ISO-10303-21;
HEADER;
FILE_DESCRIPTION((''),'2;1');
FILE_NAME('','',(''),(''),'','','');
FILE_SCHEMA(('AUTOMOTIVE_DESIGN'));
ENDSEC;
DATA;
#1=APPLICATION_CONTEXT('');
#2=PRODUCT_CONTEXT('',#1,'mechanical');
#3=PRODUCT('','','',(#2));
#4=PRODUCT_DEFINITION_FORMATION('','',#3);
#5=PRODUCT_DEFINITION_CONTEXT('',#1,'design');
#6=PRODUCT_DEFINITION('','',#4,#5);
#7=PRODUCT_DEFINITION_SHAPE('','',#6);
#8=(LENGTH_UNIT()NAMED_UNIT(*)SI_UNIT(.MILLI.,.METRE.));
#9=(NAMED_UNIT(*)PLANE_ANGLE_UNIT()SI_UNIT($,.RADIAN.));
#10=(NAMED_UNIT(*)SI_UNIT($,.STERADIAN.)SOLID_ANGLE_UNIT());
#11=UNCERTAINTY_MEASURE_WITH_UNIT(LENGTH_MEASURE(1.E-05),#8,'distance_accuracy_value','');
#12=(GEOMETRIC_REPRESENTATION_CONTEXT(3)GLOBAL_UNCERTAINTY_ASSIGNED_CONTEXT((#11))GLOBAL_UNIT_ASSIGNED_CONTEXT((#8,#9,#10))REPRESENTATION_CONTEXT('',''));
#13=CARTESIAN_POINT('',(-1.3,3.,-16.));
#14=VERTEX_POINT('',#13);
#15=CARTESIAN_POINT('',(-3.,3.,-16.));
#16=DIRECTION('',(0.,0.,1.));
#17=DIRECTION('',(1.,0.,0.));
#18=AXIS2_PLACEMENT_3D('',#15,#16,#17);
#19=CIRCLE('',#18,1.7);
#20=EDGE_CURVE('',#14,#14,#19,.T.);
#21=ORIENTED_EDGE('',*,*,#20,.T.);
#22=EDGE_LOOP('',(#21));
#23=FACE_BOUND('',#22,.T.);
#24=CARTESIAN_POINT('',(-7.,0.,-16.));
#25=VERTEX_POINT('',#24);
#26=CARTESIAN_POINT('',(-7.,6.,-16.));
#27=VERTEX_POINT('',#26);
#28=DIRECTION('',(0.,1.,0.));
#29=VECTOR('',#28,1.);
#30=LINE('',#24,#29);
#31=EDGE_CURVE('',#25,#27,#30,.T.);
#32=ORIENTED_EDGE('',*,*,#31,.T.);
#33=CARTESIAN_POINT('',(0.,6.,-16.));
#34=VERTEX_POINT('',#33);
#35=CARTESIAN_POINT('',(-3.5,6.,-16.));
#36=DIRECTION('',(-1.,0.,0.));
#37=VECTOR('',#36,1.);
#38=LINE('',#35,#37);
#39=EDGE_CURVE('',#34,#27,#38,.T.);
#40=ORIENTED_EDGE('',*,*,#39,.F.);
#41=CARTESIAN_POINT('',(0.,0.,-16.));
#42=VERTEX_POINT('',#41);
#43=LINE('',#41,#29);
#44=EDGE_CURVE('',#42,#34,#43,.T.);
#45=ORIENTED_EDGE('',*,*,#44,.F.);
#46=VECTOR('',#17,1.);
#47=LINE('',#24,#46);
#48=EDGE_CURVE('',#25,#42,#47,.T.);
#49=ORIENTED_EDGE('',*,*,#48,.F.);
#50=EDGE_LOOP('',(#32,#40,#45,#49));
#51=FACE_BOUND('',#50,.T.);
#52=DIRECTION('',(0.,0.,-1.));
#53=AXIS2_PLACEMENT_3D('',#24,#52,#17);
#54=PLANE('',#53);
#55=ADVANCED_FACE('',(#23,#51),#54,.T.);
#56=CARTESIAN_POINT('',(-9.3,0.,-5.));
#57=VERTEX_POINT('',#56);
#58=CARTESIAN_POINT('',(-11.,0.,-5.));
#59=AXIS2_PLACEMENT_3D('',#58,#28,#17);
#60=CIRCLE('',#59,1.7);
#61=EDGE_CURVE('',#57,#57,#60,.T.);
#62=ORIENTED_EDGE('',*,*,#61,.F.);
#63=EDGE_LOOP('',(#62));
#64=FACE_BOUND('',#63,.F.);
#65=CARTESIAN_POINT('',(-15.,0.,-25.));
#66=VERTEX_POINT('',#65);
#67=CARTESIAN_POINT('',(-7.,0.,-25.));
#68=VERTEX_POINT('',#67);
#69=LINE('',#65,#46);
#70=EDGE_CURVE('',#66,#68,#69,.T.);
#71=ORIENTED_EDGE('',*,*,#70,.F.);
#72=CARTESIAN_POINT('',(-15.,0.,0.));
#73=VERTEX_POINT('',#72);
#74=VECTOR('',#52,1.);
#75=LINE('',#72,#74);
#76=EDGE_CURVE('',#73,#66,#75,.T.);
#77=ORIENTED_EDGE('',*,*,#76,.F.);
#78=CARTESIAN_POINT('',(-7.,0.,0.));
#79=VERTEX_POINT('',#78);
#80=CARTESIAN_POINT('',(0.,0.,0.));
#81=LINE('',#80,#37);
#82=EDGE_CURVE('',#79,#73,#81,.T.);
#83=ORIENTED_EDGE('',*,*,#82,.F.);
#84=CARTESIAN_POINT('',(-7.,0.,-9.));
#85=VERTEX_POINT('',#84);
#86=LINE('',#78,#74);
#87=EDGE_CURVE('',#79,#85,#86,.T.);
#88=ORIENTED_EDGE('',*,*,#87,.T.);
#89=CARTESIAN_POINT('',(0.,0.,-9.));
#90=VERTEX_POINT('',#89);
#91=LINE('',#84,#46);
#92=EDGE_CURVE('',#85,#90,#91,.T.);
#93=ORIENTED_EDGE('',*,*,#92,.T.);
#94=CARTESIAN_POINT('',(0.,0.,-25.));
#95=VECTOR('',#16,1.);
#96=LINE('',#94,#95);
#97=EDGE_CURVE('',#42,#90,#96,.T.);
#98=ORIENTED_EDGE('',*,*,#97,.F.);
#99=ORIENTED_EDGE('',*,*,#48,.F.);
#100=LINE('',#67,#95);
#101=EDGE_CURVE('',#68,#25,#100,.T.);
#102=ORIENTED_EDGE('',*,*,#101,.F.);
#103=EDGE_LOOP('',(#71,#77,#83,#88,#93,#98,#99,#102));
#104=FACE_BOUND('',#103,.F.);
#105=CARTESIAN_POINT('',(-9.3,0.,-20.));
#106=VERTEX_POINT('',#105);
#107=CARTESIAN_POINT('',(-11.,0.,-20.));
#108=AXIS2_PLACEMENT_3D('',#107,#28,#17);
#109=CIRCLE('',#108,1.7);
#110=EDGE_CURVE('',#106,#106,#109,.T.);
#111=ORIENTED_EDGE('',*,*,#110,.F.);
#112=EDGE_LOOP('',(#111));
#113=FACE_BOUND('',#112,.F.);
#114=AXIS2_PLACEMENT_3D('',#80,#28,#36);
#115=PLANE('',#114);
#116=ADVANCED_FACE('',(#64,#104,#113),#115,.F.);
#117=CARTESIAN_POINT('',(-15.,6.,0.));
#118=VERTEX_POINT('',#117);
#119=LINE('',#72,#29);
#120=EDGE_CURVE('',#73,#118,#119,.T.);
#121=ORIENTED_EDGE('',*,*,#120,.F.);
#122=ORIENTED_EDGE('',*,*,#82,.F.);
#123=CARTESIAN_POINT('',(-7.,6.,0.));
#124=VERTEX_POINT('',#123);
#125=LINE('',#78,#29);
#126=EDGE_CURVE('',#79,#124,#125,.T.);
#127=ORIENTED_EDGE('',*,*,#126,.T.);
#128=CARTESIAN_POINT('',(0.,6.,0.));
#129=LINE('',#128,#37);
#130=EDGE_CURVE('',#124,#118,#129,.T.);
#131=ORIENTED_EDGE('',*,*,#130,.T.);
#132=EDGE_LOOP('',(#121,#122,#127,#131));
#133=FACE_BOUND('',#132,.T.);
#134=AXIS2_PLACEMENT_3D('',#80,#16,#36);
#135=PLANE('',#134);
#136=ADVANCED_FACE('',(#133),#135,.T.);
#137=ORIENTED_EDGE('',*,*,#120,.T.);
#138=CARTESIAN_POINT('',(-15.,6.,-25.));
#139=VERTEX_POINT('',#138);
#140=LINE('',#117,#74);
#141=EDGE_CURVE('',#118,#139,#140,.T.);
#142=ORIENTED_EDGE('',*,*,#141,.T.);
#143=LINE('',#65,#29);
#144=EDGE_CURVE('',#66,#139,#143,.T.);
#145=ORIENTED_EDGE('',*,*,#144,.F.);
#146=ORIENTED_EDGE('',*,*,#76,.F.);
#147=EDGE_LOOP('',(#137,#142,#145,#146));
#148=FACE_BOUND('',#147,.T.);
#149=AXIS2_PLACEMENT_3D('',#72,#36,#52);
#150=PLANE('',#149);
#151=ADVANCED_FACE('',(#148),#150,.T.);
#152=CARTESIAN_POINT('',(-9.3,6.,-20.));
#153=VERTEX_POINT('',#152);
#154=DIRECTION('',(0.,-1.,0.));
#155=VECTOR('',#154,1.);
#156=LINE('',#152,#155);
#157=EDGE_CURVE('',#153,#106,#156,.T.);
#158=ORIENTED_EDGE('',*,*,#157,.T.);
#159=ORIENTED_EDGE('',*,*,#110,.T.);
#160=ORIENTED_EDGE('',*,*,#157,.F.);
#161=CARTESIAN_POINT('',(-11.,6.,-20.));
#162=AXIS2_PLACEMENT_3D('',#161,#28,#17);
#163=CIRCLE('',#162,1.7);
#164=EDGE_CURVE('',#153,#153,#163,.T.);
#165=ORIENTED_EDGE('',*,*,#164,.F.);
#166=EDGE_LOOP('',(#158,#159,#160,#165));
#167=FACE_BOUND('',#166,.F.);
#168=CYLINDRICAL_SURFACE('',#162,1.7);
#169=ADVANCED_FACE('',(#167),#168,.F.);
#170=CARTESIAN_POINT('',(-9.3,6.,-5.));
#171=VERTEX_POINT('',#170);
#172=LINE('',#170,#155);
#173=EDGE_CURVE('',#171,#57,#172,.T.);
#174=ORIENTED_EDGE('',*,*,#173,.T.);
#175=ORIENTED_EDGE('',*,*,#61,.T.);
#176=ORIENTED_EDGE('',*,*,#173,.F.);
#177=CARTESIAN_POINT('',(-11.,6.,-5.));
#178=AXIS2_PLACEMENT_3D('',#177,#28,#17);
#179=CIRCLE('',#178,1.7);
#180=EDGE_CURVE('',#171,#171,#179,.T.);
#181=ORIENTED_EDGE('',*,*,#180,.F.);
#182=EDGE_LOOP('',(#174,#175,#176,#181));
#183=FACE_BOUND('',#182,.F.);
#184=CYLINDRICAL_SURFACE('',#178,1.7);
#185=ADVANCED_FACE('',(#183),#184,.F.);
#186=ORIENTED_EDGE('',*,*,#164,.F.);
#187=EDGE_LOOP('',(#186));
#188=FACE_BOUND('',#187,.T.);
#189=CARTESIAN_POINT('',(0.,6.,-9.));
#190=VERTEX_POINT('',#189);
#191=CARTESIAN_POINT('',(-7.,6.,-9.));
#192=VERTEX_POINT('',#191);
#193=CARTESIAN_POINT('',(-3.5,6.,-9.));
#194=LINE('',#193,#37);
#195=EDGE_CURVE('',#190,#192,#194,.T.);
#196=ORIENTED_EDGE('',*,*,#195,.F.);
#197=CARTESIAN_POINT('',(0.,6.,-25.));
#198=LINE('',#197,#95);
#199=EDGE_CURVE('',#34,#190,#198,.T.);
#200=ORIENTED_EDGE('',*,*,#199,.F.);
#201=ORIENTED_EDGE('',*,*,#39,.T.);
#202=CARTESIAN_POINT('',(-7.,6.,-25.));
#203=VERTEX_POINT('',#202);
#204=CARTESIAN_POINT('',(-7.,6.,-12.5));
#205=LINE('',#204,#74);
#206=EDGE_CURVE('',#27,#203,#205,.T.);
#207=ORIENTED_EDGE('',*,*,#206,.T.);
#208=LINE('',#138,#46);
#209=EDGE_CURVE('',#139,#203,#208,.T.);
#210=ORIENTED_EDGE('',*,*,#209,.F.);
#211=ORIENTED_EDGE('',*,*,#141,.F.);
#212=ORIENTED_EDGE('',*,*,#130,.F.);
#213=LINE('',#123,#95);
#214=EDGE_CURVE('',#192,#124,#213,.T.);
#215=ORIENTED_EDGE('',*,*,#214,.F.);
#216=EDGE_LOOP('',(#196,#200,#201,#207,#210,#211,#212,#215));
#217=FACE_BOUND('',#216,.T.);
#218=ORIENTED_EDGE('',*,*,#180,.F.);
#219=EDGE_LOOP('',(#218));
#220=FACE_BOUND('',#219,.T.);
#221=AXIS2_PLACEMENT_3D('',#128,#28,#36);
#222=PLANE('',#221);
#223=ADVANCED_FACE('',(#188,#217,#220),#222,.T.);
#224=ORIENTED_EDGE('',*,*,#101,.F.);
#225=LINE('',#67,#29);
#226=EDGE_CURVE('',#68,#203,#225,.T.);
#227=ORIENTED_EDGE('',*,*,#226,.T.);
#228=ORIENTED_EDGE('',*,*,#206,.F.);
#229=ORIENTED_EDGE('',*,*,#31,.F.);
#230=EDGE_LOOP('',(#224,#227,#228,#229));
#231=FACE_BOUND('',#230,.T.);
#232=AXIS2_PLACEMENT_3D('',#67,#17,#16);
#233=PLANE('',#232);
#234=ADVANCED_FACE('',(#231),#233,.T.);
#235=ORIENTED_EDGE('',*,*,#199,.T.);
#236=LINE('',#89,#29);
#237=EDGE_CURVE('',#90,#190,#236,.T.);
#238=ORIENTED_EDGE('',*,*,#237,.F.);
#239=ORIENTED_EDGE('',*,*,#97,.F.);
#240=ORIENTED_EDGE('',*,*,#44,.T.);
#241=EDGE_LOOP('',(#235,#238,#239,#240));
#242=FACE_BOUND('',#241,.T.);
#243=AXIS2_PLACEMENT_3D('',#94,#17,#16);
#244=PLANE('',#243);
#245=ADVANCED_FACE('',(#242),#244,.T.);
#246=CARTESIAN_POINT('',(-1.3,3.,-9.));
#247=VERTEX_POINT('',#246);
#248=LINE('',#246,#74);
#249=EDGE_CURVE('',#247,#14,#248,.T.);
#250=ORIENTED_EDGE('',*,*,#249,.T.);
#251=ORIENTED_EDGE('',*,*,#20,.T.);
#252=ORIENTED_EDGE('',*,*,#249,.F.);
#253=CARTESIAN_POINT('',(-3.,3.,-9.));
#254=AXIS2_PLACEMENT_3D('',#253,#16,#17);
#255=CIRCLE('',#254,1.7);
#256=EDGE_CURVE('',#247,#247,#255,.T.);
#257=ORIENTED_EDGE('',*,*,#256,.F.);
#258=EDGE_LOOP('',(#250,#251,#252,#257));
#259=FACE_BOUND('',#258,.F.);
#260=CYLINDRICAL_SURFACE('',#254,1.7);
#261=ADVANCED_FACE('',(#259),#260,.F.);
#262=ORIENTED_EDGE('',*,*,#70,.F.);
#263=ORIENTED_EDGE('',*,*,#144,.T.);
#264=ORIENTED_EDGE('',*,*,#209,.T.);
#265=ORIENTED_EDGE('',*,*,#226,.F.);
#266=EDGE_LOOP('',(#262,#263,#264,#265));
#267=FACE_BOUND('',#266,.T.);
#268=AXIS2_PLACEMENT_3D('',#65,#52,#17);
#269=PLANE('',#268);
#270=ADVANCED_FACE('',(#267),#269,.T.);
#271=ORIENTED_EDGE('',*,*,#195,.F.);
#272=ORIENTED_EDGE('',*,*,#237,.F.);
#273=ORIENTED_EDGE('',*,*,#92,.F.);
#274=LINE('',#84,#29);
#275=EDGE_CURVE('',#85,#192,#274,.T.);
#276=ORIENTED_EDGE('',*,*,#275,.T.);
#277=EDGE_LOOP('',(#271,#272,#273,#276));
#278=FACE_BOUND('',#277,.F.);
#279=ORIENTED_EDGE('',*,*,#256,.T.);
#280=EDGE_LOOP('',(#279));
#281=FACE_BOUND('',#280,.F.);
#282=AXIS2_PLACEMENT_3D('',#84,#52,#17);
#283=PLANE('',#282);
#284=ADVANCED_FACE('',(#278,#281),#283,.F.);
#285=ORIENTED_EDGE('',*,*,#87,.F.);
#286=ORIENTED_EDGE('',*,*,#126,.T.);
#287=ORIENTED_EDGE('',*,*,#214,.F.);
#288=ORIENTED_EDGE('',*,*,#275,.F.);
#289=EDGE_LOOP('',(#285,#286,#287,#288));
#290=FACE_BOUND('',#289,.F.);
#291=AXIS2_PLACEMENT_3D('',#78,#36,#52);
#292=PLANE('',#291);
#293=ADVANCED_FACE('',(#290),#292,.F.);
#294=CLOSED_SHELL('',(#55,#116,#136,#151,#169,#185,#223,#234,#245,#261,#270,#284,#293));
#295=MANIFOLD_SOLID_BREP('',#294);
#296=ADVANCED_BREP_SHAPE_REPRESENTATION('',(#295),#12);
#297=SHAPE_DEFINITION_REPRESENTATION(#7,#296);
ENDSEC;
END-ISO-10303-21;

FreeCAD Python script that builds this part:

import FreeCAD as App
import Part
import Sketcher
Q = App.Units.Quantity


def add_polygon(sketch, points):
    """Adds a closed chain of lines whose ends are joined by coincident constraints."""
    first, n = sketch.GeometryCount, len(points)
    for a, b in zip(points, points[1:] + points[:1]):
        sketch.addGeometry(Part.LineSegment(App.Vector(*a, 0), App.Vector(*b, 0)), False)
    for i in range(n):
        sketch.addConstraint(Sketcher.Constraint("Coincident", first + i, 2, first + (i + 1) % n, 1))

doc = App.newDocument("Part")
body = doc.addObject("PartDesign::Body", "Body")

# Sketch on XZ plane
sketch1 = body.newObject("Sketcher::SketchObject", "Sketch")
sketch1.AttachmentSupport = (doc.getObject("XZ_Plane"), [""])
sketch1.MapMode = "FlatFace"
add_polygon(sketch1, [(-15, 0), (0, 0), (0, -25), (-15, -25)])  # lines 0-3
sketch1.addConstraint(Sketcher.Constraint("Horizontal", 0))
sketch1.addConstraint(Sketcher.Constraint("Vertical", 1))
sketch1.addConstraint(Sketcher.Constraint("Horizontal", 2))
sketch1.addConstraint(Sketcher.Constraint("Vertical", 3))
sketch1.addConstraint(Sketcher.Constraint("Coincident", 0, 2, -1, 1))
sketch1.addConstraint(Sketcher.Constraint("DistanceX", 0, 1, 0, 2, Q("15 mm")))
sketch1.addConstraint(Sketcher.Constraint("DistanceY", 1, 2, 1, 1, Q("25 mm")))
pad1 = body.newObject("PartDesign::Pad", "Pad")
pad1.Profile = sketch1
pad1.Length = 6
pad1.Reversed = True

# Sketch on XZ plane
sketch2 = body.newObject("Sketcher::SketchObject", "Sketch001")
sketch2.AttachmentSupport = (doc.getObject("XZ_Plane"), [""])
sketch2.MapMode = "FlatFace"
sketch2.AttachmentOffset = App.Placement(App.Vector(0, 0, -6), App.Rotation())
sketch2.addGeometry(Part.Circle(App.Vector(-11, -5, 0), App.Vector(0, 0, 1), 1.7), False)
sketch2.addGeometry(Part.Circle(App.Vector(-11, -20, 0), App.Vector(0, 0, 1), 1.7), False)
sketch2.addConstraint(Sketcher.Constraint("Equal", 0, 1))
sketch2.addConstraint(Sketcher.Constraint("Vertical", 0, 3, 1, 3))
sketch2.addConstraint(Sketcher.Constraint("Diameter", 0, Q("3.4 mm")))
sketch2.addConstraint(Sketcher.Constraint("DistanceY", 0, 3, -1, 1, Q("5 mm")))
sketch2.addConstraint(Sketcher.Constraint("DistanceX", 0, 3, -1, 1, Q("11 mm")))
sketch2.addConstraint(Sketcher.Constraint("DistanceY", 1, 3, -1, 1, Q("20 mm")))
pocket1 = body.newObject("PartDesign::Pocket", "Pocket")
pocket1.Profile = sketch2
pocket1.Length = 30
pocket1.Reversed = True

# Sketch on XZ plane
sketch3 = body.newObject("Sketcher::SketchObject", "Sketch002")
sketch3.AttachmentSupport = (doc.getObject("XZ_Plane"), [""])
sketch3.MapMode = "FlatFace"
add_polygon(sketch3, [(-7, -25), (0, -25), (0, -16), (-7, -16)])  # lines 0-3
add_polygon(sketch3, [(0, 0), (-7, 0), (-7, -9), (0, -9)])  # lines 4-7
sketch3.addConstraint(Sketcher.Constraint("Horizontal", 0))
sketch3.addConstraint(Sketcher.Constraint("Vertical", 1))
sketch3.addConstraint(Sketcher.Constraint("Horizontal", 2))
sketch3.addConstraint(Sketcher.Constraint("Vertical", 3))
sketch3.addConstraint(Sketcher.Constraint("Horizontal", 4))
sketch3.addConstraint(Sketcher.Constraint("Vertical", 5))
sketch3.addConstraint(Sketcher.Constraint("Horizontal", 6))
sketch3.addConstraint(Sketcher.Constraint("Vertical", 7))
sketch3.addConstraint(Sketcher.Constraint("Coincident", 7, 2, -1, 1))
sketch3.addConstraint(Sketcher.Constraint("PointOnObject", 0, 2, -2))
sketch3.addConstraint(Sketcher.Constraint("Vertical", 3, 2, 4, 2))
sketch3.addConstraint(Sketcher.Constraint("Equal", 3, 5))
sketch3.addConstraint(Sketcher.Constraint("DistanceX", 0, 1, 0, 2, Q("7 mm")))
sketch3.addConstraint(Sketcher.Constraint("DistanceY", 1, 1, 1, 2, Q("9 mm")))
sketch3.addConstraint(Sketcher.Constraint("DistanceY", 2, 2, 5, 2, Q("7 mm")))
pocket2 = body.newObject("PartDesign::Pocket", "Pocket001")
pocket2.Profile = sketch3
pocket2.Length = 30

# Sketch on XY plane
sketch4 = body.newObject("Sketcher::SketchObject", "Sketch003")
sketch4.AttachmentSupport = (doc.getObject("XY_Plane"), [""])
sketch4.MapMode = "FlatFace"
sketch4.AttachmentOffset = App.Placement(App.Vector(0, 0, -9), App.Rotation())
sketch4.addGeometry(Part.Circle(App.Vector(-3, 3, 0), App.Vector(0, 0, 1), 1.7), False)
sketch4.addConstraint(Sketcher.Constraint("Diameter", 0, Q("3.4 mm")))
sketch4.addConstraint(Sketcher.Constraint("DistanceX", 0, 3, -1, 1, Q("3 mm")))
sketch4.addConstraint(Sketcher.Constraint("DistanceY", -1, 1, 0, 3, Q("3 mm")))
pocket3 = body.newObject("PartDesign::Pocket", "Pocket002")
pocket3.Profile = sketch4
pocket3.Length = 30

doc.recompute()
